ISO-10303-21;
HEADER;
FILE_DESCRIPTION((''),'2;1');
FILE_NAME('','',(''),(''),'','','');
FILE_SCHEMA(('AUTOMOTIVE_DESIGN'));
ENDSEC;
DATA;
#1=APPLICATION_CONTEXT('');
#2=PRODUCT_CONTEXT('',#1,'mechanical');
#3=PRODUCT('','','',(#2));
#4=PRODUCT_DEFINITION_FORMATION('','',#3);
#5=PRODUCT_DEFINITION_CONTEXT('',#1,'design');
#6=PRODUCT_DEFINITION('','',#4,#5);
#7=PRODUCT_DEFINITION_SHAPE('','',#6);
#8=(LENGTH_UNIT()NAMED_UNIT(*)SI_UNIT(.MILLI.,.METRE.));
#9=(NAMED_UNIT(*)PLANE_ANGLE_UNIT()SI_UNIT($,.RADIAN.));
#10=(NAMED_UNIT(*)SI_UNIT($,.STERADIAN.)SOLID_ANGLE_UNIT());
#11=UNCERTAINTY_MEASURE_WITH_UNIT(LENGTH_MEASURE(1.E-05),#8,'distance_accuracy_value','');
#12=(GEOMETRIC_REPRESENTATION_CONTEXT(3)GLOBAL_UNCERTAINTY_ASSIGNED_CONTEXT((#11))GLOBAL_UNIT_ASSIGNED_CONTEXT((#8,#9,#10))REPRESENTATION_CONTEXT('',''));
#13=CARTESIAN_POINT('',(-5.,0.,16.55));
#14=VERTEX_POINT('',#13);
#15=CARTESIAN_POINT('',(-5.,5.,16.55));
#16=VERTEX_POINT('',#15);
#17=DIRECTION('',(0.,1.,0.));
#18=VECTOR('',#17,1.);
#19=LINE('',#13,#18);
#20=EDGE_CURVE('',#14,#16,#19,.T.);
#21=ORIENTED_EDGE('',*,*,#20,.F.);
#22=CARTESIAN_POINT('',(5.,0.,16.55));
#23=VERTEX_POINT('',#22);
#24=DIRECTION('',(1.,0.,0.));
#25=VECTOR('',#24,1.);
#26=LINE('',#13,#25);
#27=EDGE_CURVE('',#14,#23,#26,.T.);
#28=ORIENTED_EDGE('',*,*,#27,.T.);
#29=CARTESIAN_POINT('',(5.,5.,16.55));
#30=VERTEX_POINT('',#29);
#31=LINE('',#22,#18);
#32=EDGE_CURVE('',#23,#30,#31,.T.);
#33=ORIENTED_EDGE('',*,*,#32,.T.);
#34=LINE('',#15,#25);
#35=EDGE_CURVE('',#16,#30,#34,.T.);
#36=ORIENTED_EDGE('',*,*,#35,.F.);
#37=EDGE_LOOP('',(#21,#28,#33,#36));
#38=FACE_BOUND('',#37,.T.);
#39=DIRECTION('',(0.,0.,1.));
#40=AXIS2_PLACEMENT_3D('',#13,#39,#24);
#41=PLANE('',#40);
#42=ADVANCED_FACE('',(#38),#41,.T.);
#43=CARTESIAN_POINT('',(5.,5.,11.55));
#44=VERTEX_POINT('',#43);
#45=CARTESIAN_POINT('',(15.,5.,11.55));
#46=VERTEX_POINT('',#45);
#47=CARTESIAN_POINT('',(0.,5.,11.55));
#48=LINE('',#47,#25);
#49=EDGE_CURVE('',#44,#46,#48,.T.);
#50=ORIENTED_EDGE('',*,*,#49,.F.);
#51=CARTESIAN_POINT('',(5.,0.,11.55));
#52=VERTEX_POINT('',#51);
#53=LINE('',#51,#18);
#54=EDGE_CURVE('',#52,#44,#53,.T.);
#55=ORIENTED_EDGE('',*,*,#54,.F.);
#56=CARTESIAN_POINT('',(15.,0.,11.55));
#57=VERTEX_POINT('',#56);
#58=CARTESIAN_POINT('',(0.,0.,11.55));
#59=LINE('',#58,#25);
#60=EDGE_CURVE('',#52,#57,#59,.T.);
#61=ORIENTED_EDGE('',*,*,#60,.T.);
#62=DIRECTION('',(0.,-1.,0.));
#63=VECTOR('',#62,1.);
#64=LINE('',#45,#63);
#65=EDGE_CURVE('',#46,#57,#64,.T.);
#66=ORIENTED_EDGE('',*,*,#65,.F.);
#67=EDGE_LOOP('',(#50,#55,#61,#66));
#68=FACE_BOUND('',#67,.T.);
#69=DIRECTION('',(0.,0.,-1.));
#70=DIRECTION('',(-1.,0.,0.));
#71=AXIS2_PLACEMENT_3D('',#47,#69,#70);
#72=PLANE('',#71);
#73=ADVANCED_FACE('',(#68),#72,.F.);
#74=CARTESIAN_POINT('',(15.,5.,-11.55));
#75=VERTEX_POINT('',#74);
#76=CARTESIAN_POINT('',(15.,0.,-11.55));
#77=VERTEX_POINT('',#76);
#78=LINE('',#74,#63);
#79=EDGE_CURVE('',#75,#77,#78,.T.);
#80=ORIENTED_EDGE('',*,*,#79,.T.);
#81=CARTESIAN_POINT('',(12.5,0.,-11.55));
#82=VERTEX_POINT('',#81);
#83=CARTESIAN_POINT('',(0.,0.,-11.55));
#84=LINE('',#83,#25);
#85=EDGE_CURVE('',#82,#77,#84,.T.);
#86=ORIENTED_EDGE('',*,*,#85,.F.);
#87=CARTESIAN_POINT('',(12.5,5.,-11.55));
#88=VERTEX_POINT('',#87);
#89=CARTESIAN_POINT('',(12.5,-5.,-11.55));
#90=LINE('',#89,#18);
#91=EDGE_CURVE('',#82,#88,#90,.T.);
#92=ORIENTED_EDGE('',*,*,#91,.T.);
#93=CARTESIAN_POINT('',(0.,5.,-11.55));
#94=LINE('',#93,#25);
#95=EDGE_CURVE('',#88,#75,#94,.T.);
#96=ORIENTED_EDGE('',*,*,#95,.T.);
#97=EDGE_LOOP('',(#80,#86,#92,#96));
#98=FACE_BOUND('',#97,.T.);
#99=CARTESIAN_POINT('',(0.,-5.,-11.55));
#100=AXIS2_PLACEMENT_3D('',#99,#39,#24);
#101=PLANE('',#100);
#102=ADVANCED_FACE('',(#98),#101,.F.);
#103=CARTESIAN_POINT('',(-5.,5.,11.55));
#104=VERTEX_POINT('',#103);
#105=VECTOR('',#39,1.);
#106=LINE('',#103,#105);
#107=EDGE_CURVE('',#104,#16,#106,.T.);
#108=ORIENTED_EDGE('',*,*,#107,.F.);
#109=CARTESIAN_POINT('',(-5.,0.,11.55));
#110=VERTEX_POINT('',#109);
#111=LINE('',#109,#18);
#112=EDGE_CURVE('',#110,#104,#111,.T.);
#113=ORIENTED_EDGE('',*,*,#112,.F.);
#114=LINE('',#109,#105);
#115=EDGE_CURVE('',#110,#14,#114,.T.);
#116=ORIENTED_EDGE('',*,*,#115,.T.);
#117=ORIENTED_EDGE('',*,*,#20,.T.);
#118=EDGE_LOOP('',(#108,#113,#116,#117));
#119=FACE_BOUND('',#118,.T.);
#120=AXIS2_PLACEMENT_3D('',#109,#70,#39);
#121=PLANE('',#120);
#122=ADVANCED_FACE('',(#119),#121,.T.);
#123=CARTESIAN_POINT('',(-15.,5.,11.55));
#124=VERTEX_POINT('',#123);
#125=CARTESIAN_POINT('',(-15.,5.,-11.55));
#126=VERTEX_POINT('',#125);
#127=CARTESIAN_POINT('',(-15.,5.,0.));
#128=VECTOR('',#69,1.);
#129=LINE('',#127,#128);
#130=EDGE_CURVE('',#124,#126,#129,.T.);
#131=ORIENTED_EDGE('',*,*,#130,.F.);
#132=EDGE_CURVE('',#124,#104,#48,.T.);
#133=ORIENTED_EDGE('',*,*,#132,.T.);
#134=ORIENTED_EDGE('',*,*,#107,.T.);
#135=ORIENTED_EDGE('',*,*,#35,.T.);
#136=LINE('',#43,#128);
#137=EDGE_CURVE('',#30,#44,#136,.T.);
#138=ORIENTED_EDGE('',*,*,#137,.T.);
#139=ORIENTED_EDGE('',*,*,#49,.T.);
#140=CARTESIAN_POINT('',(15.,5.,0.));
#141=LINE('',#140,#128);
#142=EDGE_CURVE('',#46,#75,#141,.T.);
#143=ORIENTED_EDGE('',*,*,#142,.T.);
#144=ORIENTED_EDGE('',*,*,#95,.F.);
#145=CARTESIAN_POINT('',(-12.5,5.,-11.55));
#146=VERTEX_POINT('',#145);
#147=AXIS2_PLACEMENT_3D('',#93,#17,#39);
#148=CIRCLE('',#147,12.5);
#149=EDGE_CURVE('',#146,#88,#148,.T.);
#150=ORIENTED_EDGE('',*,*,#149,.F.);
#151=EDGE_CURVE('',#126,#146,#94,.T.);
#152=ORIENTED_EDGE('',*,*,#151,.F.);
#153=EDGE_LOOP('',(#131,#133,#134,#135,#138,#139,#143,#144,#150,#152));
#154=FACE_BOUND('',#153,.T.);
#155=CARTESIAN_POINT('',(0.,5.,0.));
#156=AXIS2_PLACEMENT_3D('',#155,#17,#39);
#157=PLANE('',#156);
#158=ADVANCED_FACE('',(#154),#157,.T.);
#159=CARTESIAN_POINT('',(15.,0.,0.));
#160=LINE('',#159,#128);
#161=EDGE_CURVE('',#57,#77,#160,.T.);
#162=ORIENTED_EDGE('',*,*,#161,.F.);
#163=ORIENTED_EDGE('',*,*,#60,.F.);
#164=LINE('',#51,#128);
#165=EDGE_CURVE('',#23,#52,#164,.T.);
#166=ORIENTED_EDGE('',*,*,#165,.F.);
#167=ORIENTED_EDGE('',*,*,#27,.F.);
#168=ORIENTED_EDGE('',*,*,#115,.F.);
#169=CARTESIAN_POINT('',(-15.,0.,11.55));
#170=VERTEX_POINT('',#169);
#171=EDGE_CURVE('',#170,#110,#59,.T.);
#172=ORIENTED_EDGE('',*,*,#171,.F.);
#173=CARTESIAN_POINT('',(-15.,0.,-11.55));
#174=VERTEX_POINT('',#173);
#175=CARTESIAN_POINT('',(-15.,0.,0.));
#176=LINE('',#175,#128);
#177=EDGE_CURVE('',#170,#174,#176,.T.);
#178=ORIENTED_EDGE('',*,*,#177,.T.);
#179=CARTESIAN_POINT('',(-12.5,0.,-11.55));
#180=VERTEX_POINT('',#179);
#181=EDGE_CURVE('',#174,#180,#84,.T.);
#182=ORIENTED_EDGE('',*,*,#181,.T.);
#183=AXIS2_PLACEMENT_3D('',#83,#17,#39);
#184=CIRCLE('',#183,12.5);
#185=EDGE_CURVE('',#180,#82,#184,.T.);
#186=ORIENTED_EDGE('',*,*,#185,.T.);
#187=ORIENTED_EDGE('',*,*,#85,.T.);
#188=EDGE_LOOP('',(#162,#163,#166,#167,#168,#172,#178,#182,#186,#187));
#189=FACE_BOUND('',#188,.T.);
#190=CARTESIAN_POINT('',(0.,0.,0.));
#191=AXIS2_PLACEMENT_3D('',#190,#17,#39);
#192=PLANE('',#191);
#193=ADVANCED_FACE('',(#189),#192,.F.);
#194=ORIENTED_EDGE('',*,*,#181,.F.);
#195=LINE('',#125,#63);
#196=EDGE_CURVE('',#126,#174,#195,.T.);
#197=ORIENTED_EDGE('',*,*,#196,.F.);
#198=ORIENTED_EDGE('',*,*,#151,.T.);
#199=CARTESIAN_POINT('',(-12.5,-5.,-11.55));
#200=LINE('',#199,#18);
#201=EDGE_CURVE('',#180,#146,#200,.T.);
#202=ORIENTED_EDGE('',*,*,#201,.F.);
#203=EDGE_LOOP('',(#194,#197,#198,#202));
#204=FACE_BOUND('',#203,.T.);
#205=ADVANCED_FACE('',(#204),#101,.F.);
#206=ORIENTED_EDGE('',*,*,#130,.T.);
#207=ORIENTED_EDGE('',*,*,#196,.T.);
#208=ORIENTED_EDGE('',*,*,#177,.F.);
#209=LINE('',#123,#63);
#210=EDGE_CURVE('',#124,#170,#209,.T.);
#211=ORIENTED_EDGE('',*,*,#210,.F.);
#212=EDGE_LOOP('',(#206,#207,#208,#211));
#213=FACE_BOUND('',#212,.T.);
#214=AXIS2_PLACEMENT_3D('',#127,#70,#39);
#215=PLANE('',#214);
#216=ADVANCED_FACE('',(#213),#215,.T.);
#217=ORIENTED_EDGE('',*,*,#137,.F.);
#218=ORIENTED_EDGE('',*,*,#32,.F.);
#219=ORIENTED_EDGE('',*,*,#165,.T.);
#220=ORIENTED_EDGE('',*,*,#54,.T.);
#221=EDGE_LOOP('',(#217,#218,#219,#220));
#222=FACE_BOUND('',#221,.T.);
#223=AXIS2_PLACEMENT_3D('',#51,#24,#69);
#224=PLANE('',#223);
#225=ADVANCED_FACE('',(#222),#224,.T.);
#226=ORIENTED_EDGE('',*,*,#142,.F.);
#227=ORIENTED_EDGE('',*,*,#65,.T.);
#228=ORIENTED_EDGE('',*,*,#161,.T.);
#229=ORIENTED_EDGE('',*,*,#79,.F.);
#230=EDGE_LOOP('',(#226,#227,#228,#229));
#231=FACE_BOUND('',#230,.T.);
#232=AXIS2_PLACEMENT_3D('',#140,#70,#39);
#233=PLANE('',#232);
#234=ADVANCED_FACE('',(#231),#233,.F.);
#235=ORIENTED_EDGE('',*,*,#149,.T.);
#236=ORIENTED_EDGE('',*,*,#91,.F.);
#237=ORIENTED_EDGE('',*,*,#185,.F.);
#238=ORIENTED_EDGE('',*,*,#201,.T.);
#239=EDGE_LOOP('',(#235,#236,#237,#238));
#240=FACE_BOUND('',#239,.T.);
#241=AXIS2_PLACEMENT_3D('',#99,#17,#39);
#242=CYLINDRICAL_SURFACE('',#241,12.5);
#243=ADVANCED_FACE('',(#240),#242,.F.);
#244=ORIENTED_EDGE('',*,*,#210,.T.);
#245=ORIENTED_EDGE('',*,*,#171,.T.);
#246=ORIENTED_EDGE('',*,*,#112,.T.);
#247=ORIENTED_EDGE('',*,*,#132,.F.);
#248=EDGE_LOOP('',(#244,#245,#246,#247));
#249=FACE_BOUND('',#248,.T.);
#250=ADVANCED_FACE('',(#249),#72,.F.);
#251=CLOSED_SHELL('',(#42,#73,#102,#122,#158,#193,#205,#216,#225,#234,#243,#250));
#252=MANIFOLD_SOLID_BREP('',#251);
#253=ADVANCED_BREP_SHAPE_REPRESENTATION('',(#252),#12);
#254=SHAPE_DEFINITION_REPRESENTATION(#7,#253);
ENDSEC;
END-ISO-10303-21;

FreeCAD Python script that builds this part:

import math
import FreeCAD as App
import Part
import Sketcher
from FreeCAD import Vector
Q = App.Units.Quantity

doc = App.newDocument("Part")
params = doc.addObject("Spreadsheet::Sheet", "Params")
for row, (alias, value) in enumerate([
    ("sketch1_diameter", "25 mm"),
    ("sketch1_radius", "15 mm"),
    ("sketch1_height", "23.1 mm"),
    ("pad1_length", "5 mm"),
    ("sketch2_diameter", "25 mm"),
    ("sketch2_diameter2", "3 mm"),
    ("sketch2_diameter3", "8 mm"),
    ("pad2_length", "5 mm"),
    ("sketch3_width", "10 mm"),
    ("sketch3_height", "5 mm"),
    ("pad3_length", "5 mm"),
    ("sketch4_diameter", "3 mm"),
    ("sketch4_diameter2", "8 mm"),
    ("sketch4_radius", "15 mm"),
    ("sketch4_radius2", "12.5 mm"),
    ("pocket1_length", "10 mm"),
], start=1):
    params.set(f"A{row}", alias)
    params.set(f"B{row}", "=" + value)
    params.setAlias(f"B{row}", alias)

body = doc.addObject("PartDesign::Body", "Body")

# Sketch on XZ plane
sketch1 = doc.addObject("Sketcher::SketchObject", "Sketch")
body.addObject(sketch1)
sketch1.AttachmentSupport = (doc.XZ_Plane, [""])
sketch1.MapMode = "FlatFace"
sketch1.addGeometry(Part.ArcOfCircle(Part.Circle(Vector(0, -12, 0), Vector(0, 0, 1), 15), math.radians(180), math.radians(360)), False)
sketch1.addGeometry(Part.LineSegment(Vector(-15, -12, 0), Vector(-15, 12, 0)), False)
sketch1.addGeometry(Part.LineSegment(Vector(-15, 12, 0), Vector(15, 12, 0)), False)
sketch1.addGeometry(Part.LineSegment(Vector(15, 12, 0), Vector(15, -12, 0)), False)
sketch1.addGeometry(Part.Circle(Vector(0, -12, 0), Vector(0, 0, 1), 12), False)
sketch1.addConstraint(Sketcher.Constraint("Tangent", 0, 1, 1, 1))
sketch1.addConstraint(Sketcher.Constraint("Coincident", 1, 2, 2, 1))
sketch1.addConstraint(Sketcher.Constraint("Coincident", 2, 2, 3, 1))
sketch1.addConstraint(Sketcher.Constraint("Tangent", 3, 2, 0, 2))
sketch1.addConstraint(Sketcher.Constraint("Vertical", 1))
sketch1.addConstraint(Sketcher.Constraint("Horizontal", 2))
sketch1.addConstraint(Sketcher.Constraint("Vertical", 3))
sketch1.addConstraint(Sketcher.Constraint("Coincident", 4, 3, 0, 3))
sketch1.addConstraint(Sketcher.Constraint("Symmetric", 0, 1, 2, 2, -1, 1))
sketch1.addConstraint(Sketcher.Constraint("Diameter", 4, Q("25 mm")))
sketch1.addConstraint(Sketcher.Constraint("Radius", 0, Q("15 mm")))
sketch1.addConstraint(Sketcher.Constraint("DistanceY", 1, 1, 1, 2, Q("23.1 mm")))
sketch1.setExpression("Constraints[9]", "Params.sketch1_diameter")
sketch1.setExpression("Constraints[10]", "Params.sketch1_radius")
sketch1.setExpression("Constraints[11]", "Params.sketch1_height")
pad1 = doc.addObject("PartDesign::Pad", "Pad")
body.addObject(pad1)
pad1.Profile = sketch1
pad1.setExpression("Length", "Params.pad1_length")
pad1.Reversed = True

# Sketch on XZ plane
sketch2 = doc.addObject("Sketcher::SketchObject", "Sketch001")
body.addObject(sketch2)
sketch2.AttachmentSupport = (doc.XZ_Plane, [""])
sketch2.MapMode = "FlatFace"
sketch2.AttachmentOffset = App.Placement(Vector(0, 0, -5), App.Rotation())
sketch2.addGeometry(Part.Circle(Vector(0, -11.6, 0), Vector(0, 0, 1), 12.5), False)
sketch2.addGeometry(Part.Circle(Vector(-8.5, -11.6, 0), Vector(0, 0, 1), 1.5), False)
sketch2.addGeometry(Part.Circle(Vector(0, -11.6, 0), Vector(0, 0, 1), 4), False)
sketch2.addGeometry(Part.Circle(Vector(8.5, -11.6, 0), Vector(0, 0, 1), 1.5), False)
sketch2.addConstraint(Sketcher.Constraint("Coincident", 2, 3, 0, 3))
sketch2.addConstraint(Sketcher.Constraint("Equal", 1, 3))
sketch2.addConstraint(Sketcher.Constraint("Symmetric", 1, 3, 3, 3, -2))
sketch2.addConstraint(Sketcher.Constraint("PointOnObject", 0, 3, -2))
sketch2.addConstraint(Sketcher.Constraint("Horizontal", 0, 3, 1, 3))
sketch2.addConstraint(Sketcher.Constraint("Diameter", 0, Q("25 mm")))
sketch2.addConstraint(Sketcher.Constraint("Diameter", 1, Q("3 mm")))
sketch2.addConstraint(Sketcher.Constraint("Diameter", 2, Q("8 mm")))
sketch2.addConstraint(Sketcher.Constraint("DistanceX", 1, 3, 3, 3, Q("17 mm")))
sketch2.addConstraint(Sketcher.Constraint("DistanceY", 0, 3, -1, 1, Q("11.55 mm")))
sketch2.setExpression("Constraints[5]", "Params.sketch2_diameter")
sketch2.setExpression("Constraints[6]", "Params.sketch2_diameter2")
sketch2.setExpression("Constraints[7]", "Params.sketch2_diameter3")
pad2 = doc.addObject("PartDesign::Pad", "Pad001")
body.addObject(pad2)
pad2.Profile = sketch2
pad2.setExpression("Length", "Params.pad2_length")

# Sketch on XZ plane
sketch3 = doc.addObject("Sketcher::SketchObject", "Sketch002")
body.addObject(sketch3)
sketch3.AttachmentSupport = (doc.XZ_Plane, [""])
sketch3.MapMode = "FlatFace"
sketch3.AttachmentOffset = App.Placement(Vector(0, 0, -5), App.Rotation())
sketch3.addGeometry(Part.LineSegment(Vector(-5, 12, 0), Vector(-5, 17, 0)), False)
sketch3.addGeometry(Part.LineSegment(Vector(-5, 17, 0), Vector(5, 17, 0)), False)
sketch3.addGeometry(Part.LineSegment(Vector(5, 17, 0), Vector(5, 12, 0)), False)
sketch3.addGeometry(Part.LineSegment(Vector(5, 12, 0), Vector(-5, 12, 0)), False)
sketch3.addConstraint(Sketcher.Constraint("Coincident", 0, 2, 1, 1))
sketch3.addConstraint(Sketcher.Constraint("Coincident", 1, 2, 2, 1))
sketch3.addConstraint(Sketcher.Constraint("Coincident", 2, 2, 3, 1))
sketch3.addConstraint(Sketcher.Constraint("Coincident", 3, 2, 0, 1))
sketch3.addConstraint(Sketcher.Constraint("Vertical", 0))
sketch3.addConstraint(Sketcher.Constraint("Horizontal", 1))
sketch3.addConstraint(Sketcher.Constraint("Vertical", 2))
sketch3.addConstraint(Sketcher.Constraint("Horizontal", 3))
sketch3.addConstraint(Sketcher.Constraint("DistanceX", 1, 1, 1, 2, Q("10 mm")))
sketch3.addConstraint(Sketcher.Constraint("DistanceY", 0, 1, 0, 2, Q("5 mm")))
sketch3.addConstraint(Sketcher.Constraint("DistanceX", 0, 2, -1, 1, Q("5 mm")))
sketch3.addConstraint(Sketcher.Constraint("DistanceY", -1, 1, 0, 2, Q("16.55 mm")))
sketch3.setExpression("Constraints[8]", "Params.sketch3_width")
sketch3.setExpression("Constraints[9]", "Params.sketch3_height")
pad3 = doc.addObject("PartDesign::Pad", "Pad002")
body.addObject(pad3)
pad3.Profile = sketch3
pad3.setExpression("Length", "Params.pad3_length")

# Sketch on XZ plane
sketch4 = doc.addObject("Sketcher::SketchObject", "Sketch003")
body.addObject(sketch4)
sketch4.AttachmentSupport = (doc.XZ_Plane, [""])
sketch4.MapMode = "FlatFace"
sketch4.AttachmentOffset = App.Placement(Vector(0, 0, -5), App.Rotation())
sketch4.addGeometry(Part.LineSegment(Vector(-15, -11.6, 0), Vector(-12.5, -11.6, 0)), False)
sketch4.addGeometry(Part.ArcOfCircle(Part.Circle(Vector(0, -11.6, 0), Vector(0, 0, 1), 12.5), math.radians(0), math.radians(180)), False)
sketch4.addGeometry(Part.LineSegment(Vector(12.5, -11.6, 0), Vector(15, -11.6, 0)), False)
sketch4.addGeometry(Part.ArcOfCircle(Part.Circle(Vector(0, -11.6, 0), Vector(0, 0, 1), 15), math.radians(180), math.radians(360)), False)
sketch4.addGeometry(Part.Circle(Vector(8.5, -11.6, 0), Vector(0, 0, 1), 1.5), False)
sketch4.addGeometry(Part.Circle(Vector(0, -11.6, 0), Vector(0, 0, 1), 4), False)
sketch4.addGeometry(Part.Circle(Vector(-8.5, -11.6, 0), Vector(0, 0, 1), 1.5), False)
sketch4.addConstraint(Sketcher.Constraint("Coincident", 0, 2, 1, 2))
sketch4.addConstraint(Sketcher.Constraint("Coincident", 1, 1, 2, 1))
sketch4.addConstraint(Sketcher.Constraint("Coincident", 2, 2, 3, 2))
sketch4.addConstraint(Sketcher.Constraint("Coincident", 3, 1, 0, 1))
sketch4.addConstraint(Sketcher.Constraint("Horizontal", 0))
sketch4.addConstraint(Sketcher.Constraint("Horizontal", 2))
sketch4.addConstraint(Sketcher.Constraint("Coincident", 3, 3, 1, 3))
sketch4.addConstraint(Sketcher.Constraint("Coincident", 5, 3, 1, 3))
sketch4.addConstraint(Sketcher.Constraint("Equal", 4, 6))
sketch4.addConstraint(Sketcher.Constraint("Symmetric", 4, 3, 6, 3, -2))
sketch4.addConstraint(Sketcher.Constraint("Symmetric", 0, 2, 1, 1, -2))
sketch4.addConstraint(Sketcher.Constraint("Horizontal", 3, 3, 4, 3))
sketch4.addConstraint(Sketcher.Constraint("Horizontal", 6, 3, 0, 2))
sketch4.addConstraint(Sketcher.Constraint("Diameter", 4, Q("3 mm")))
sketch4.addConstraint(Sketcher.Constraint("Diameter", 5, Q("8 mm")))
sketch4.addConstraint(Sketcher.Constraint("Radius", 3, Q("15 mm")))
sketch4.addConstraint(Sketcher.Constraint("Radius", 1, Q("12.5 mm")))
sketch4.addConstraint(Sketcher.Constraint("DistanceX", 6, 3, 4, 3, Q("17 mm")))
sketch4.addConstraint(Sketcher.Constraint("DistanceY", 1, 3, -1, 1, Q("11.55 mm")))
sketch4.setExpression("Constraints[13]", "Params.sketch4_diameter")
sketch4.setExpression("Constraints[14]", "Params.sketch4_diameter2")
sketch4.setExpression("Constraints[15]", "Params.sketch4_radius")
sketch4.setExpression("Constraints[16]", "Params.sketch4_radius2")
pocket1 = doc.addObject("PartDesign::Pocket", "Pocket")
body.addObject(pocket1)
pocket1.Profile = sketch4
pocket1.setExpression("Length", "Params.pocket1_length")
pocket1.Reversed = True

doc.recompute()
